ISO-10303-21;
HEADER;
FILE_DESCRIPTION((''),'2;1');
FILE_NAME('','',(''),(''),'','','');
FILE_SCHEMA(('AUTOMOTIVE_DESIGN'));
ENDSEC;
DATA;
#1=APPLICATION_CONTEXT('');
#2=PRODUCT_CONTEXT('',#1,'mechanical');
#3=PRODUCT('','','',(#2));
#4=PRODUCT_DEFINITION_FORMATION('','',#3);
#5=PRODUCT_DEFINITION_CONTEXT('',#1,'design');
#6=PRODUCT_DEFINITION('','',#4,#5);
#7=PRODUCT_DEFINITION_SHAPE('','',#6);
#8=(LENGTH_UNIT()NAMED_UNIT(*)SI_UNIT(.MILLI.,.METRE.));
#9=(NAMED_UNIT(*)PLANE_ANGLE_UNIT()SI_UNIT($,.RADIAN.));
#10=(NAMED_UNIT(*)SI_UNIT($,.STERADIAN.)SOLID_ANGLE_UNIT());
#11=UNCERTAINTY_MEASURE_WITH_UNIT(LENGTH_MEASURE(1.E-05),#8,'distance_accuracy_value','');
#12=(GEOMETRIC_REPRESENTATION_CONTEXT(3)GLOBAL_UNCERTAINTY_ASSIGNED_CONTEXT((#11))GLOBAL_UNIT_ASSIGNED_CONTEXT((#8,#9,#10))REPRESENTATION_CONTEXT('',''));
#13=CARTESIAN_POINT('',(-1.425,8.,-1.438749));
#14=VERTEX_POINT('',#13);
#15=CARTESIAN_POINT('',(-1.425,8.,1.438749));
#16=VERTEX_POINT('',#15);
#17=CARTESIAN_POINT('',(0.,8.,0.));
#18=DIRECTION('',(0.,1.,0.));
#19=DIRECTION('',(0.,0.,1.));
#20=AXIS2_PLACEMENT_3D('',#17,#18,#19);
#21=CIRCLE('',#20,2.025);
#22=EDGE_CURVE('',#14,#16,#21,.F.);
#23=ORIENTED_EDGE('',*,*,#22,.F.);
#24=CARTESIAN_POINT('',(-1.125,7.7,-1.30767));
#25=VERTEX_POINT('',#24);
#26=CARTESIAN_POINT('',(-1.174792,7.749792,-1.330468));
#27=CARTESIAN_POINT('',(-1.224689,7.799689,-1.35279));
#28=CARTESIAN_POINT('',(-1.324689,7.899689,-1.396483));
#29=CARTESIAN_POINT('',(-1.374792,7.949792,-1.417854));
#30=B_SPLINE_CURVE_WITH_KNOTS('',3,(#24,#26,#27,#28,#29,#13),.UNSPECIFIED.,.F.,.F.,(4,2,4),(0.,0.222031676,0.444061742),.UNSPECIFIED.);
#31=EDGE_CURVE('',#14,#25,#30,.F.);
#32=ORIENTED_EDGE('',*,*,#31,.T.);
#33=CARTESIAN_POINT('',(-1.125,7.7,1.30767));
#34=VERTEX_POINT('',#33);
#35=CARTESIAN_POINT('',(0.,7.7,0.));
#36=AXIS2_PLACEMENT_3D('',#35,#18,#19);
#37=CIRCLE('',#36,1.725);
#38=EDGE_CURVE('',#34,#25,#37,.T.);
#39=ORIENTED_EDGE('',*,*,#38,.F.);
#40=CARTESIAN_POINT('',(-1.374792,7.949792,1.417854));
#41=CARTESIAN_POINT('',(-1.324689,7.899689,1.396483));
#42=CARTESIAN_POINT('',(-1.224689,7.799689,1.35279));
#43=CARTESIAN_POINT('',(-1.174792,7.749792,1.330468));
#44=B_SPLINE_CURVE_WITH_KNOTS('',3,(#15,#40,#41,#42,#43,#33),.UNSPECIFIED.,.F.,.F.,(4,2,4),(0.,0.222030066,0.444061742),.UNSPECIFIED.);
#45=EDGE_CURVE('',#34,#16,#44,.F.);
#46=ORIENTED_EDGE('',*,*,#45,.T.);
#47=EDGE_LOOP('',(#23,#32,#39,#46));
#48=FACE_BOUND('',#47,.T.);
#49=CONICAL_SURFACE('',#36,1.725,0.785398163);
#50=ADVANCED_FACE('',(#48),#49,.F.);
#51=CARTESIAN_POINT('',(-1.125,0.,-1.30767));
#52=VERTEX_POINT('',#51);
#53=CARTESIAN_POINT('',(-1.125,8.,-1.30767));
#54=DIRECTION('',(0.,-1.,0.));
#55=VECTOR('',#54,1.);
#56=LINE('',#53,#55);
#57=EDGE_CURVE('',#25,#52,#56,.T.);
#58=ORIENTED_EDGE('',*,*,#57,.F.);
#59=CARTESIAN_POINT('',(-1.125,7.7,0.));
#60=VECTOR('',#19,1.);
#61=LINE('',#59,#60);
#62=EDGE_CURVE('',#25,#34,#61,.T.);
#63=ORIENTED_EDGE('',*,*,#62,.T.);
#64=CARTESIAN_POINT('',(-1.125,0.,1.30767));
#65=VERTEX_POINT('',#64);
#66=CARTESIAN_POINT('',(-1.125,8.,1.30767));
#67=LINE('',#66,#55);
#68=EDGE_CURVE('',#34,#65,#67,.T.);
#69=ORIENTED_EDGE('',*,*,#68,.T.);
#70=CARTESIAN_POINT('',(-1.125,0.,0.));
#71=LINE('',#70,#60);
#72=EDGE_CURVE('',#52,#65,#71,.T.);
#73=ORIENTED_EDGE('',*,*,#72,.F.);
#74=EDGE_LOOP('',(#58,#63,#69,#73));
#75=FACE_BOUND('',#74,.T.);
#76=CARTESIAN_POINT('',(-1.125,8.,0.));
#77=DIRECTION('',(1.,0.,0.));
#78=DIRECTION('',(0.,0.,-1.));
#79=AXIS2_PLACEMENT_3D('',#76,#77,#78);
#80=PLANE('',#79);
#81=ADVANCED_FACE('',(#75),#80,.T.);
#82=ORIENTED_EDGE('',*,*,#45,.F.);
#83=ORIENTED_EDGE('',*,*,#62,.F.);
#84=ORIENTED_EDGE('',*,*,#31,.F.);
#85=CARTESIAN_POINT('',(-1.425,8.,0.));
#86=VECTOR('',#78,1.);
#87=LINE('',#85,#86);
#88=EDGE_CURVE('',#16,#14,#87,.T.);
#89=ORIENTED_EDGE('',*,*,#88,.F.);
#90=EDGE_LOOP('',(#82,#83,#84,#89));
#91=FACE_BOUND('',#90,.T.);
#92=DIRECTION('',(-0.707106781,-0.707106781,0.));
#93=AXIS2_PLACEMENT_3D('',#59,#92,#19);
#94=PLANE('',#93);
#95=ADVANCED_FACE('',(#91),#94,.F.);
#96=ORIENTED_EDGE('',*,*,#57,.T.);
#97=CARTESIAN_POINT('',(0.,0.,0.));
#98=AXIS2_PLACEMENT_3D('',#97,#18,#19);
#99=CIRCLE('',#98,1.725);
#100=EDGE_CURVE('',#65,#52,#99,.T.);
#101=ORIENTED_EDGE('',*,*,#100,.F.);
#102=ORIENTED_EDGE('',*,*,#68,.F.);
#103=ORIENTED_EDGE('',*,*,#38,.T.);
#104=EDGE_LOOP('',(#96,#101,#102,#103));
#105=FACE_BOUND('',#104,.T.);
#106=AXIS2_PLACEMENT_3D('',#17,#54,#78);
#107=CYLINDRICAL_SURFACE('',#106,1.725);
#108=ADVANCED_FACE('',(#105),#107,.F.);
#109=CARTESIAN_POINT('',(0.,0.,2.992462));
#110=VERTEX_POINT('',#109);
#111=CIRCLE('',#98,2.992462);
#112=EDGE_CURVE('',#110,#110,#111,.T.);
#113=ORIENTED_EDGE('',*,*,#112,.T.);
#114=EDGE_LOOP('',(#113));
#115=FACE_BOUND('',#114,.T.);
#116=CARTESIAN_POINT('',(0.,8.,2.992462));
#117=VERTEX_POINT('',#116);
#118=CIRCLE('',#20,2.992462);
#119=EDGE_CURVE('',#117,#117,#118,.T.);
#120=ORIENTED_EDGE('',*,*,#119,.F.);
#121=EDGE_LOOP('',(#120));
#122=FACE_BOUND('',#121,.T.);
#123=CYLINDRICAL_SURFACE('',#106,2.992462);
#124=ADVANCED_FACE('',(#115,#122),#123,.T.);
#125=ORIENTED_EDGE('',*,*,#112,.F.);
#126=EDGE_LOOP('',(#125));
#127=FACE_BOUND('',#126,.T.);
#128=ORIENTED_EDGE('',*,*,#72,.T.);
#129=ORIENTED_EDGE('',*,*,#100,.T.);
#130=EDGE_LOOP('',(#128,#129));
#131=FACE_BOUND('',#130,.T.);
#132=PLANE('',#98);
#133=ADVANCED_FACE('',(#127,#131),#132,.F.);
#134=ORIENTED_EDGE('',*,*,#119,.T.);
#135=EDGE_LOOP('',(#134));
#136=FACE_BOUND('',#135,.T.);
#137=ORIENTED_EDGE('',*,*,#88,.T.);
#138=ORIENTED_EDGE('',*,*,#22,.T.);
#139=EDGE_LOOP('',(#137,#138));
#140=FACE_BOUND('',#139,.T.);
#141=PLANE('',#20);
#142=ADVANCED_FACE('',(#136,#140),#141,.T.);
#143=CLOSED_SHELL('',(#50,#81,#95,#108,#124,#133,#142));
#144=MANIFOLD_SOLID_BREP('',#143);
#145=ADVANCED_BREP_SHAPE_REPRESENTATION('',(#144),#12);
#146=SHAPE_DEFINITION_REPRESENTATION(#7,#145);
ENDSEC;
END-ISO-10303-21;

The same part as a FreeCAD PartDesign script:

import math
import FreeCAD as App
import Part
import Sketcher


def edges_at(feature, points):
    """Names of the edges that pass closest to the given points."""
    edges = feature.Shape.Edges
    near = lambda p: min(range(len(edges)), key=lambda i: edges[i].distToShape(Part.Vertex(*p))[0])
    return sorted({f"Edge{near(p) + 1}" for p in points})

doc = App.newDocument("Part")
params = doc.addObject("Spreadsheet::Sheet", "Params")
for row, (alias, value) in enumerate([
    ("pad1_length", "8 mm"),
    ("chamfer_size", "0.3 mm"),
], start=1):
    params.set(f"A{row}", alias)
    params.set(f"B{row}", "=" + value)
    params.setAlias(f"B{row}", alias)

body = doc.addObject("PartDesign::Body", "Body")

# Sketch on XZ plane
sketch1 = body.newObject("Sketcher::SketchObject", "Sketch")
sketch1.AttachmentSupport = (doc.getObject("XZ_Plane"), [""])
sketch1.MapMode = "FlatFace"
sketch1.addGeometry(Part.Circle(App.Vector(0, 0, 0), App.Vector(0, 0, 1), 3), False)
sketch1.addGeometry(Part.LineSegment(App.Vector(-1.1, 1.3, 0), App.Vector(-1.1, -1.3, 0)), False)
sketch1.addGeometry(Part.ArcOfCircle(Part.Circle(App.Vector(0, 0, 0), App.Vector(0, 0, 1), 1.7), math.radians(-131), math.radians(131)), False)
sketch1.addConstraint(Sketcher.Constraint("Coincident", 1, 1, 2, 2))
sketch1.addConstraint(Sketcher.Constraint("Coincident", 2, 1, 1, 2))
sketch1.addConstraint(Sketcher.Constraint("Vertical", 1))
sketch1.addConstraint(Sketcher.Constraint("Coincident", 0, 3, -1, 1))
sketch1.addConstraint(Sketcher.Constraint("Coincident", 2, 3, -1, 1))
sketch1.addConstraint(Sketcher.Constraint("Radius", 2, 1.725))
sketch1.addConstraint(Sketcher.Constraint("Diameter", 0, 5.984923))
sketch1.addConstraint(Sketcher.Constraint("DistanceX", 1, 1, -1, 1, 1.125))
pad1 = body.newObject("PartDesign::Pad", "Pad")
pad1.Profile = sketch1
pad1.setExpression("Length", "Params.pad1_length")
pad1.Reversed = True
doc.recompute()

chamfer = body.newObject("PartDesign::Chamfer", "Chamfer")
chamfer.Base = (pad1, edges_at(pad1, [(1.725, 8, 0), (-1.125, 8, 0)]))
chamfer.setExpression("Size", "Params.chamfer_size")

doc.recompute()
